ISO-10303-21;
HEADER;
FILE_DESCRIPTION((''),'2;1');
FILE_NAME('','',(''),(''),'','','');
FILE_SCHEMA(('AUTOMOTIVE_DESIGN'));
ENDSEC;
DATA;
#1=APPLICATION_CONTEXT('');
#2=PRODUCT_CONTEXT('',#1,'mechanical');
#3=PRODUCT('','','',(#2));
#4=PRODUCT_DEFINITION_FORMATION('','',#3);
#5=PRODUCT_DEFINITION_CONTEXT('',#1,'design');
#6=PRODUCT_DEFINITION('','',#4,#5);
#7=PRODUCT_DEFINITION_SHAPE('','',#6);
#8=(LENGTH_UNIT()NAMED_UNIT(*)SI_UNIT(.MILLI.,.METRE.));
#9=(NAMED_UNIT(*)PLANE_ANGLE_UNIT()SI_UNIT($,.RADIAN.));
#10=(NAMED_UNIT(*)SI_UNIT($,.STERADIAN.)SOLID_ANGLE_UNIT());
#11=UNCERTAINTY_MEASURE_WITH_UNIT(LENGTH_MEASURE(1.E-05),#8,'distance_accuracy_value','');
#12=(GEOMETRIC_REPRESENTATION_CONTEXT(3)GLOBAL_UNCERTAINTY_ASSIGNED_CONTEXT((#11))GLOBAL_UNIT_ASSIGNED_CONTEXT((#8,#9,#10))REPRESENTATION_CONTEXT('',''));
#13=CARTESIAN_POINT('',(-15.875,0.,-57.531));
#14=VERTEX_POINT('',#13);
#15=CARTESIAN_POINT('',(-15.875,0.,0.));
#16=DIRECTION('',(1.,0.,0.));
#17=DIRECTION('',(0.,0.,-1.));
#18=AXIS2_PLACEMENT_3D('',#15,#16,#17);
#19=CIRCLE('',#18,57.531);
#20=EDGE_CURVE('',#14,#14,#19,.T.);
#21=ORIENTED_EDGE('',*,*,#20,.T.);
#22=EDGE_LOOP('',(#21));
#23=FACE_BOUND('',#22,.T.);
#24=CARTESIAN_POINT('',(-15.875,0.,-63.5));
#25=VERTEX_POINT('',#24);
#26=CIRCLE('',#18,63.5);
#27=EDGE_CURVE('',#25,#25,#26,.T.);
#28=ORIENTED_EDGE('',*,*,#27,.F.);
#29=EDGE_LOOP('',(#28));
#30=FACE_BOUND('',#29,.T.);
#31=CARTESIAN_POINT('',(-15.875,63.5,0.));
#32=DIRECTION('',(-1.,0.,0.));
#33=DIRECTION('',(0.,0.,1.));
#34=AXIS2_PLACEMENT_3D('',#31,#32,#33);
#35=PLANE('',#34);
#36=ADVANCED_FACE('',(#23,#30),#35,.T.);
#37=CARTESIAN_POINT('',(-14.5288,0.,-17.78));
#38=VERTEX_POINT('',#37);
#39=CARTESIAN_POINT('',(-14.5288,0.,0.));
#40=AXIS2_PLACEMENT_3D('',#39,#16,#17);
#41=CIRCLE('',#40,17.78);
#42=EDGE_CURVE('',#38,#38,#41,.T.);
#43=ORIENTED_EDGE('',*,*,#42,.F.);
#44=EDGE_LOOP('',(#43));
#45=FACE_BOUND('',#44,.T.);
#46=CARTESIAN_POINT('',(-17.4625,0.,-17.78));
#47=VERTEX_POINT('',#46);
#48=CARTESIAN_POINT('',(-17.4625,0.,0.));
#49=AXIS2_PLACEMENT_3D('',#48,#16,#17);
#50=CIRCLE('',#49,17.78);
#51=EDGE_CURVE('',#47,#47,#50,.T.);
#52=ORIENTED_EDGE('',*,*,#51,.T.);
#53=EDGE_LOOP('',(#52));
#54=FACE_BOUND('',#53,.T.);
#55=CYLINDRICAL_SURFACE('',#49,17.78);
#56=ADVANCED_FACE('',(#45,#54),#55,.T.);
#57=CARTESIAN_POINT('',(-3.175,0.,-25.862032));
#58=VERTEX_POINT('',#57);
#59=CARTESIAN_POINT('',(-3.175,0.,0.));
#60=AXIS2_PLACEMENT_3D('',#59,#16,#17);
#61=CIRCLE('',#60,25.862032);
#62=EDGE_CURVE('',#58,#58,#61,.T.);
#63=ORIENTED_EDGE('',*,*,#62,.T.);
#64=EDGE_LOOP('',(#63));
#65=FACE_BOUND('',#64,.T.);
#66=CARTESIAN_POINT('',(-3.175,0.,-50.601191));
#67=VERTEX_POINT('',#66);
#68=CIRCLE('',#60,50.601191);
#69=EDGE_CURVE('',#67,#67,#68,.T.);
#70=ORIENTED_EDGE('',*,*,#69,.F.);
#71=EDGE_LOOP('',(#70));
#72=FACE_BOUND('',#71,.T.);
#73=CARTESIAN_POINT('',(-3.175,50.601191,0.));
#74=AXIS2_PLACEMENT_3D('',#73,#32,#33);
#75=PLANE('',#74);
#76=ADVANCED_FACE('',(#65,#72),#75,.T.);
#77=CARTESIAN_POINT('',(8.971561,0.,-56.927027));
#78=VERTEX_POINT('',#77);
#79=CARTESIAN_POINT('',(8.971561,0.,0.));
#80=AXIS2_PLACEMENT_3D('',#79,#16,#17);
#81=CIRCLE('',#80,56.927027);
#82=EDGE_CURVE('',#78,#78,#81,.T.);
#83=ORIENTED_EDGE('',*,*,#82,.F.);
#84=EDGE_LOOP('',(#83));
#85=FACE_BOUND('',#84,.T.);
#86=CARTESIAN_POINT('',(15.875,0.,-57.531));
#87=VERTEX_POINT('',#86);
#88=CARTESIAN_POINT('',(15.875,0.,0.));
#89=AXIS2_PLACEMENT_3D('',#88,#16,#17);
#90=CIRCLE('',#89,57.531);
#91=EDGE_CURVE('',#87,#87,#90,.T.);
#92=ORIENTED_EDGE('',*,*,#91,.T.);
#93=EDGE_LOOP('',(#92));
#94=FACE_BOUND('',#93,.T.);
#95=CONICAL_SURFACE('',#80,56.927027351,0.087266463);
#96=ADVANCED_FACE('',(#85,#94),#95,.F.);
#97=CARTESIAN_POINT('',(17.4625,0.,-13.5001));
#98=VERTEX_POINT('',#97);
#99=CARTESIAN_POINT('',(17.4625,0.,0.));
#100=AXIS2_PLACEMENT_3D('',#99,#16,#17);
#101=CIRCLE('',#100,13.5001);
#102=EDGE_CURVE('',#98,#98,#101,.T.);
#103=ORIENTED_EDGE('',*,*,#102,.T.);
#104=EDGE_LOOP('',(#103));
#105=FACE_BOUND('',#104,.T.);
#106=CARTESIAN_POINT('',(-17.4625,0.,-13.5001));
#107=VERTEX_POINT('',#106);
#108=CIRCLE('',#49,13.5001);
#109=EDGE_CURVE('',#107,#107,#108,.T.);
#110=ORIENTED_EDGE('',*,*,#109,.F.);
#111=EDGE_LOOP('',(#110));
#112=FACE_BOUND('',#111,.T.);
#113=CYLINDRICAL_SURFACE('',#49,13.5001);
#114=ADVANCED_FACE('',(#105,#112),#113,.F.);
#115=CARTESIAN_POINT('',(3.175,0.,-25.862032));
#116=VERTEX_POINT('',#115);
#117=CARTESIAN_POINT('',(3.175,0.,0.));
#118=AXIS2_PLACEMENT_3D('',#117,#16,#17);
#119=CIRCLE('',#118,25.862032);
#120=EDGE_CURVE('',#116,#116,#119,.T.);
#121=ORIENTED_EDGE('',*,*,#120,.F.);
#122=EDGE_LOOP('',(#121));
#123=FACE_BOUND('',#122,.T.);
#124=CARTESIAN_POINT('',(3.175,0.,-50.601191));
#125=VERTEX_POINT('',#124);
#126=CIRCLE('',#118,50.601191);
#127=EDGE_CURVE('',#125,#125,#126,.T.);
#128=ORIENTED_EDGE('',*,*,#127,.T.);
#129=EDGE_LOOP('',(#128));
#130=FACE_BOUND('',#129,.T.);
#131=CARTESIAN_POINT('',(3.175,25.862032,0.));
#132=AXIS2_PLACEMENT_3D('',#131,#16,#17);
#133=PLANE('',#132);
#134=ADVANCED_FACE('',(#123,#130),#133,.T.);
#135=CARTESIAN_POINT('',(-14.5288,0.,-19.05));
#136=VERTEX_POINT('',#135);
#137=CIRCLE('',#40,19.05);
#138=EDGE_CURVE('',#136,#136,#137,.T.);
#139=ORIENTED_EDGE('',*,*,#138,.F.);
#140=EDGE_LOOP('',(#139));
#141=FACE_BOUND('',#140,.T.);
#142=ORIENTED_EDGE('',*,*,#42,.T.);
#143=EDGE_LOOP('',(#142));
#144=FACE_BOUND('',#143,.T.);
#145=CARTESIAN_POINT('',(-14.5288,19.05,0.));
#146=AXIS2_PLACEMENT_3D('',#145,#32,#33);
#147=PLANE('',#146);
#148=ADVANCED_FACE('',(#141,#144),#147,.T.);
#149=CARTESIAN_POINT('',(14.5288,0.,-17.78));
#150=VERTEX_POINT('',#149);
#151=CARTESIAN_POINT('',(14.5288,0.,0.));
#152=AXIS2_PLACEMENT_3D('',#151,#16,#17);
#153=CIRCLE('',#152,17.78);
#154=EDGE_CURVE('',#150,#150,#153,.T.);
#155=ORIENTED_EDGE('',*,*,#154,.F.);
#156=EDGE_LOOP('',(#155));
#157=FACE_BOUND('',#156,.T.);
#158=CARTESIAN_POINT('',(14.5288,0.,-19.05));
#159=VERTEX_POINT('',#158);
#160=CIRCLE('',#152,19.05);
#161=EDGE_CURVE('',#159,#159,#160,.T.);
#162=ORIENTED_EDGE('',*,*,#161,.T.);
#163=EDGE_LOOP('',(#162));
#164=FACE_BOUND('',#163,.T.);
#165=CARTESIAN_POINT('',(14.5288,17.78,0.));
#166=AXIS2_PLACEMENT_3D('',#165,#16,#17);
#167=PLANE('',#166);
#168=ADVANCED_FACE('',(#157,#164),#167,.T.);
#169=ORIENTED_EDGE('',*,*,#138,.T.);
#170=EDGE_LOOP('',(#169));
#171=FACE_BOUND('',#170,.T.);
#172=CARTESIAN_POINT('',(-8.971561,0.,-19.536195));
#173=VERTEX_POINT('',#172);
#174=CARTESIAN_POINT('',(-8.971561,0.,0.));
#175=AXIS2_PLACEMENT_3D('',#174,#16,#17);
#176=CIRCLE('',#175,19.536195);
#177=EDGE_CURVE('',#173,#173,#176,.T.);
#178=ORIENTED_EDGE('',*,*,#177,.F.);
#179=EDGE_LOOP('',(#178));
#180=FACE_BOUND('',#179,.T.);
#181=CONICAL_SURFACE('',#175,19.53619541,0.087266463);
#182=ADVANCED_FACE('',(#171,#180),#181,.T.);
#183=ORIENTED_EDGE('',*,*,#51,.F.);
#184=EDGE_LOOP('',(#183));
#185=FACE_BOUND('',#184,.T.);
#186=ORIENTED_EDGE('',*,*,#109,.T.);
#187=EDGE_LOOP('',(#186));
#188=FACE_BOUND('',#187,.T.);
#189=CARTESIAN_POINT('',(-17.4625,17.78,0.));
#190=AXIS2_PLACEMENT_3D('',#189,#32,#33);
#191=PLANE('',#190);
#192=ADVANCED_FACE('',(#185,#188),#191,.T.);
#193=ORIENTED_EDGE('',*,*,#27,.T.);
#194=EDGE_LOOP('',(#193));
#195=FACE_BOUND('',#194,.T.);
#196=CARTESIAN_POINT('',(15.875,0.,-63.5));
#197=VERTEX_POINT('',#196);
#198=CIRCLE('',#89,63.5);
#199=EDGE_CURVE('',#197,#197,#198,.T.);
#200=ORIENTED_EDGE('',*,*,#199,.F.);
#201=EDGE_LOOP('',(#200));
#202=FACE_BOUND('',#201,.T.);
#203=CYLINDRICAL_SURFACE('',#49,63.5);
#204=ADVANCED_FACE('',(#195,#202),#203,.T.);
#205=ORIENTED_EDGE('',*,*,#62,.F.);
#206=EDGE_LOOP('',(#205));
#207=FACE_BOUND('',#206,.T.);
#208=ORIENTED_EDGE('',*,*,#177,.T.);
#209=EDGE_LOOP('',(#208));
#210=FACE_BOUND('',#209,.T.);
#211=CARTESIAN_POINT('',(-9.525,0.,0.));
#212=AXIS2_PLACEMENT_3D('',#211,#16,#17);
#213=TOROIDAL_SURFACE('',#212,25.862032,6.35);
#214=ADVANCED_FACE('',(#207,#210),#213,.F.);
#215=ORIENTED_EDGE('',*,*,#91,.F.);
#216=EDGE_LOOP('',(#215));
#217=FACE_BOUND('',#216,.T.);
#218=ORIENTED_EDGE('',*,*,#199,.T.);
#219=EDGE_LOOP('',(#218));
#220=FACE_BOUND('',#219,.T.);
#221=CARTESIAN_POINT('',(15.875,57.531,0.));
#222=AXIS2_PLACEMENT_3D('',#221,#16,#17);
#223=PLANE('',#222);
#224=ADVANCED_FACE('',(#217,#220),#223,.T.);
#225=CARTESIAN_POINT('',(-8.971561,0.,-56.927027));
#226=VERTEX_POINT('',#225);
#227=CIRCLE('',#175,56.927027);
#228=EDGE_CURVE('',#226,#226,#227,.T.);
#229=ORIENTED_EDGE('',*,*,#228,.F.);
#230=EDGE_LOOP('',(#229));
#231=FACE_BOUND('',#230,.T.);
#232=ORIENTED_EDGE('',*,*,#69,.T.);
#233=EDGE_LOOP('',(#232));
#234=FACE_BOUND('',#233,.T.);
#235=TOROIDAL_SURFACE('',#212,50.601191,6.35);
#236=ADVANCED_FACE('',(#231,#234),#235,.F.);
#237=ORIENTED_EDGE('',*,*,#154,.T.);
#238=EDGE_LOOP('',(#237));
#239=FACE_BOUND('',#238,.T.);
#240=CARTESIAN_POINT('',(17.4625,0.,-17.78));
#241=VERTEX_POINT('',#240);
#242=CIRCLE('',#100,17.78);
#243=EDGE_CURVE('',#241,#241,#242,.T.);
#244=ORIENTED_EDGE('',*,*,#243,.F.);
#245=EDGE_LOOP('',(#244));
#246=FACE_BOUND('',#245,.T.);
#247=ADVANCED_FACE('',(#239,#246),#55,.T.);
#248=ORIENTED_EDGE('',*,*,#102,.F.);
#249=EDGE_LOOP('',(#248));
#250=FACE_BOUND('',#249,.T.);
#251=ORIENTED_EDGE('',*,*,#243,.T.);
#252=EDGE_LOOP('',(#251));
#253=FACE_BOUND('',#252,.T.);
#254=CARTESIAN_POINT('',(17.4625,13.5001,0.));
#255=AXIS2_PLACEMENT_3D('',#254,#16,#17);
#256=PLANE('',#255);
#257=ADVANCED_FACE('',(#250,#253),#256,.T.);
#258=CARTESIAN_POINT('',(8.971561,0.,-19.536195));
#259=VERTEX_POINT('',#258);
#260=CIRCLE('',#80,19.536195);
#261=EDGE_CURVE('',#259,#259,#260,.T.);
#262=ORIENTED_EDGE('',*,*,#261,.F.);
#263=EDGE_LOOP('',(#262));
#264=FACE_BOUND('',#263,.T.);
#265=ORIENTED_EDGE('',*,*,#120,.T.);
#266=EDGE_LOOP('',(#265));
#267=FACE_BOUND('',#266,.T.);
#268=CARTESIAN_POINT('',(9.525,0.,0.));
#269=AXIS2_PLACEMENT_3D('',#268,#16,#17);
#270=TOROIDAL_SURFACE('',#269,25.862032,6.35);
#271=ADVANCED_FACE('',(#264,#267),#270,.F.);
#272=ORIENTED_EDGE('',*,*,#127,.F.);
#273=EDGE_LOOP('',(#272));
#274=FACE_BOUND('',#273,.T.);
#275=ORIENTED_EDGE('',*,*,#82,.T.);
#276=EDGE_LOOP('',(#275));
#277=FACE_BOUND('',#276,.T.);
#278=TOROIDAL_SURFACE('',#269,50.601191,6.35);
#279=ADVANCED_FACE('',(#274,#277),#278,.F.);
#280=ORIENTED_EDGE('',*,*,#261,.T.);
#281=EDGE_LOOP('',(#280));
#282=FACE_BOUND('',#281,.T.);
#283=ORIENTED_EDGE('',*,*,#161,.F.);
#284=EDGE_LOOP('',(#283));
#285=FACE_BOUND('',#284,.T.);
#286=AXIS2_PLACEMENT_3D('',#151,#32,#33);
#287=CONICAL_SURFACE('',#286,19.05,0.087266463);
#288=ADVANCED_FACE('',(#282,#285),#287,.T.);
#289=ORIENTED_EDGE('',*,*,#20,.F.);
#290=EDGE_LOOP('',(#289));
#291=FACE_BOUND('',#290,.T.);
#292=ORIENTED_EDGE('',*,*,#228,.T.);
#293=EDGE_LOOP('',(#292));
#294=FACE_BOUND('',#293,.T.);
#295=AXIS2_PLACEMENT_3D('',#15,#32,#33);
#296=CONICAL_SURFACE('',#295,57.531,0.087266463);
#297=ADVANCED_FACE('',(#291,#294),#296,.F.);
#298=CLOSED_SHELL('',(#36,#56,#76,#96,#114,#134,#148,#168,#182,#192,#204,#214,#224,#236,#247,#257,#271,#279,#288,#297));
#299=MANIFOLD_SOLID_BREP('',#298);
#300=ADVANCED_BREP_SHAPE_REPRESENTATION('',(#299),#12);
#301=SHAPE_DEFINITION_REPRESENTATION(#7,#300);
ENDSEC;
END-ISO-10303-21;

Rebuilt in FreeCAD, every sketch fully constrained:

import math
import FreeCAD as App
import Part
import Sketcher

V = App.Vector
Q = App.Units.Quantity

doc = App.newDocument("Part")
body = doc.addObject("PartDesign::Body", "Body")

# Sketch on XY plane
sketch1 = body.newObject("Sketcher::SketchObject", "Sketch")
sketch1.AttachmentSupport = (doc.getObject("XY_Plane"), [""])
sketch1.MapMode = "FlatFace"
sketch1.addGeometry(Part.LineSegment(V(-14.5, 17.8, 0), V(-17.5, 17.8, 0)), False)
sketch1.addGeometry(Part.LineSegment(V(-17.5, 17.8, 0), V(-17.5, 13.5, 0)), False)
sketch1.addGeometry(Part.LineSegment(V(-17.5, 13.5, 0), V(17.5, 13.5, 0)), False)
sketch1.addGeometry(Part.LineSegment(V(17.5, 13.5, 0), V(17.5, 17.8, 0)), False)
sketch1.addGeometry(Part.LineSegment(V(17.5, 17.8, 0), V(14.5, 17.8, 0)), False)
sketch1.addGeometry(Part.LineSegment(V(14.5, 17.8, 0), V(14.5, 19.1, 0)), False)
sketch1.addGeometry(Part.LineSegment(V(14.5, 19.1, 0), V(9, 19.5, 0)), False)
sketch1.addGeometry(Part.ArcOfCircle(Part.Circle(V(9.5, 25.9, 0), V(0, 0, 1), 6.3), math.radians(180), math.radians(265)), False)
sketch1.addGeometry(Part.LineSegment(V(3.2, 25.9, 0), V(3.2, 50.6, 0)), False)
sketch1.addGeometry(Part.ArcOfCircle(Part.Circle(V(9.5, 50.6, 0), V(0, 0, 1), 6.3), math.radians(95), math.radians(180)), False)
sketch1.addGeometry(Part.LineSegment(V(9, 56.9, 0), V(15.9, 57.5, 0)), False)
sketch1.addGeometry(Part.LineSegment(V(15.9, 57.5, 0), V(15.9, 63.5, 0)), False)
sketch1.addGeometry(Part.LineSegment(V(15.9, 63.5, 0), V(-15.9, 63.5, 0)), False)
sketch1.addGeometry(Part.LineSegment(V(-15.9, 63.5, 0), V(-15.9, 57.5, 0)), False)
sketch1.addGeometry(Part.LineSegment(V(-15.9, 57.5, 0), V(-9, 56.9, 0)), False)
sketch1.addGeometry(Part.ArcOfCircle(Part.Circle(V(-9.5, 50.6, 0), V(0, 0, 1), 6.3), math.radians(0), math.radians(85)), False)
sketch1.addGeometry(Part.LineSegment(V(-3.2, 50.6, 0), V(-3.2, 25.9, 0)), False)
sketch1.addGeometry(Part.ArcOfCircle(Part.Circle(V(-9.5, 25.9, 0), V(0, 0, 1), 6.3), math.radians(-85), math.radians(0)), False)
sketch1.addGeometry(Part.LineSegment(V(-9, 19.5, 0), V(-14.5, 19.1, 0)), False)
sketch1.addGeometry(Part.LineSegment(V(-14.5, 19.1, 0), V(-14.5, 17.8, 0)), False)
sketch1.addConstraint(Sketcher.Constraint("Coincident", 0, 2, 1, 1))
sketch1.addConstraint(Sketcher.Constraint("Coincident", 1, 2, 2, 1))
sketch1.addConstraint(Sketcher.Constraint("Coincident", 2, 2, 3, 1))
sketch1.addConstraint(Sketcher.Constraint("Coincident", 3, 2, 4, 1))
sketch1.addConstraint(Sketcher.Constraint("Coincident", 4, 2, 5, 1))
sketch1.addConstraint(Sketcher.Constraint("Coincident", 5, 2, 6, 1))
sketch1.addConstraint(Sketcher.Constraint("Tangent", 6, 2, 7, 2))
sketch1.addConstraint(Sketcher.Constraint("Tangent", 7, 1, 8, 1))
sketch1.addConstraint(Sketcher.Constraint("Tangent", 8, 2, 9, 2))
sketch1.addConstraint(Sketcher.Constraint("Tangent", 9, 1, 10, 1))
sketch1.addConstraint(Sketcher.Constraint("Coincident", 10, 2, 11, 1))
sketch1.addConstraint(Sketcher.Constraint("Coincident", 11, 2, 12, 1))
sketch1.addConstraint(Sketcher.Constraint("Coincident", 12, 2, 13, 1))
sketch1.addConstraint(Sketcher.Constraint("Coincident", 13, 2, 14, 1))
sketch1.addConstraint(Sketcher.Constraint("Tangent", 14, 2, 15, 2))
sketch1.addConstraint(Sketcher.Constraint("Tangent", 15, 1, 16, 1))
sketch1.addConstraint(Sketcher.Constraint("Tangent", 16, 2, 17, 2))
sketch1.addConstraint(Sketcher.Constraint("Tangent", 17, 1, 18, 1))
sketch1.addConstraint(Sketcher.Constraint("Coincident", 18, 2, 19, 1))
sketch1.addConstraint(Sketcher.Constraint("Coincident", 19, 2, 0, 1))
sketch1.addConstraint(Sketcher.Constraint("Horizontal", 0))
sketch1.addConstraint(Sketcher.Constraint("Vertical", 1))
sketch1.addConstraint(Sketcher.Constraint("Horizontal", 2))
sketch1.addConstraint(Sketcher.Constraint("Vertical", 3))
sketch1.addConstraint(Sketcher.Constraint("Horizontal", 4))
sketch1.addConstraint(Sketcher.Constraint("Vertical", 5))
sketch1.addConstraint(Sketcher.Constraint("Vertical", 8))
sketch1.addConstraint(Sketcher.Constraint("Vertical", 11))
sketch1.addConstraint(Sketcher.Constraint("Horizontal", 12))
sketch1.addConstraint(Sketcher.Constraint("Vertical", 13))
sketch1.addConstraint(Sketcher.Constraint("Vertical", 16))
sketch1.addConstraint(Sketcher.Constraint("Vertical", 19))
sketch1.addConstraint(Sketcher.Constraint("Equal", 7, 9))
sketch1.addConstraint(Sketcher.Constraint("Equal", 9, 15))
sketch1.addConstraint(Sketcher.Constraint("Equal", 15, 17))
sketch1.addConstraint(Sketcher.Constraint("Symmetric", 9, 3, 15, 3, -2))
sketch1.addConstraint(Sketcher.Constraint("Symmetric", 0, 2, 3, 2, -2))
sketch1.addConstraint(Sketcher.Constraint("Symmetric", 10, 2, 13, 2, -2))
sketch1.addConstraint(Sketcher.Constraint("Symmetric", 6, 2, 17, 1, -2))
sketch1.addConstraint(Sketcher.Constraint("Parallel", 6, 14))
sketch1.addConstraint(Sketcher.Constraint("Horizontal", 5, 2, 18, 2))
sketch1.addConstraint(Sketcher.Constraint("Radius", 7, Q("0.25 in")))
sketch1.addConstraint(Sketcher.Constraint("Angle", 6, Q("175 deg")))
sketch1.addConstraint(Sketcher.Constraint("DistanceX", 15, 3, 10, 2, Q("1 in")))
sketch1.addConstraint(Sketcher.Constraint("DistanceX", 12, 2, 12, 1, Q("1.25 in")))
sketch1.addConstraint(Sketcher.Constraint("DistanceY", 5, 1, 5, 2, Q("0.05 in")))
sketch1.addConstraint(Sketcher.Constraint("DistanceY", -1, 1, 0, 2, Q("0.7 in")))
sketch1.addConstraint(Sketcher.Constraint("DistanceY", -1, 1, 11, 2, Q("2.5 in")))
sketch1.addConstraint(Sketcher.Constraint("DistanceX", 2, 1, 2, 2, Q("1.375 in")))
sketch1.addConstraint(Sketcher.Constraint("DistanceY", 11, 1, 11, 2, Q("0.235 in")))
sketch1.addConstraint(Sketcher.Constraint("DistanceX", 0, 2, 0, 1, Q("0.1155 in")))
sketch1.addConstraint(Sketcher.Constraint("DistanceY", 1, 2, 1, 1, Q("0.1685 in")))
revolution = body.newObject("PartDesign::Revolution", "Revolution")
revolution.Profile = sketch1
revolution.ReferenceAxis = (sketch1, ["H_Axis"])
revolution.Angle = 360

doc.recompute()
